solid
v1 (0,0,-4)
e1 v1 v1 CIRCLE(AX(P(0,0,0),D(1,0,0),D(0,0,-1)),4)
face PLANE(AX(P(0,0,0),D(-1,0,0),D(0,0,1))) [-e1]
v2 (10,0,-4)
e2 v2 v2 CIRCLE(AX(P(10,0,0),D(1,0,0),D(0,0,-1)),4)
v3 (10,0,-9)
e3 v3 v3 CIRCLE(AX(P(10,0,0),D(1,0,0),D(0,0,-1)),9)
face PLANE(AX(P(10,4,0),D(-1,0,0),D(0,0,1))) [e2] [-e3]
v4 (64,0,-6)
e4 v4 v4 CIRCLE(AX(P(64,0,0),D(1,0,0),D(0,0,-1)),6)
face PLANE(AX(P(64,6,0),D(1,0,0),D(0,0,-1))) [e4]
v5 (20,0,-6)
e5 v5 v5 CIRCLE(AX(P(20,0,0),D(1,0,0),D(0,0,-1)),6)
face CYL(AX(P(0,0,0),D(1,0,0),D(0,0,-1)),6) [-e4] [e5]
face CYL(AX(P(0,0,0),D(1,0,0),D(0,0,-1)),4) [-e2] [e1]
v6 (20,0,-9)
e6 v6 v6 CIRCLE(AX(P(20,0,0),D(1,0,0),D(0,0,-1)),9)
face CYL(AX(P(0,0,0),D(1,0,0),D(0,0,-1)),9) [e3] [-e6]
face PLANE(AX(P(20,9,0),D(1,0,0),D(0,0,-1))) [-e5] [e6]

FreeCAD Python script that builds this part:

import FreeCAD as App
import Part
import Sketcher

V = App.Vector


def add_polygon(sketch, points):
    """Adds a closed chain of lines whose ends are joined by coincident constraints."""
    first, n = sketch.GeometryCount, len(points)
    for a, b in zip(points, points[1:] + points[:1]):
        sketch.addGeometry(Part.LineSegment(App.Vector(*a, 0), App.Vector(*b, 0)), False)
    for i in range(n):
        sketch.addConstraint(Sketcher.Constraint("Coincident", first + i, 2, first + (i + 1) % n, 1))

doc = App.newDocument("Part")
params = doc.addObject("Spreadsheet::Sheet", "Params")
for row, (alias, value) in enumerate([
    ("sketch1_width", "64 mm"),
    ("sketch1_width2", "44 mm"),
    ("sketch1_height", "4 mm"),
    ("sketch1_height2", "6 mm"),
    ("sketch1_height3", "3 mm"),
    ("revolution_angle", "360 deg"),
], start=1):
    params.set(f"A{row}", alias)
    params.set(f"B{row}", "=" + value)
    params.setAlias(f"B{row}", alias)

body = doc.addObject("PartDesign::Body", "Body")

# Sketch on XY plane
sketch1 = doc.addObject("Sketcher::SketchObject", "Sketch")
body.addObject(sketch1)
sketch1.AttachmentSupport = (doc.XY_Plane, [""])
sketch1.MapMode = "FlatFace"
add_polygon(sketch1, [(0, 4), (0, 0), (64, 0), (64, 6), (20, 6), (20, 9), (10, 9), (10, 4)])  # lines 0-7
sketch1.addConstraint(Sketcher.Constraint("Vertical", 0))
sketch1.addConstraint(Sketcher.Constraint("Horizontal", 1))
sketch1.addConstraint(Sketcher.Constraint("Vertical", 2))
sketch1.addConstraint(Sketcher.Constraint("Horizontal", 3))
sketch1.addConstraint(Sketcher.Constraint("Vertical", 4))
sketch1.addConstraint(Sketcher.Constraint("Horizontal", 5))
sketch1.addConstraint(Sketcher.Constraint("Vertical", 6))
sketch1.addConstraint(Sketcher.Constraint("Horizontal", 7))
sketch1.addConstraint(Sketcher.Constraint("Coincident", 0, 2, -1, 1))
sketch1.addConstraint(Sketcher.Constraint("Equal", 5, 7))
sketch1.addConstraint(Sketcher.Constraint("DistanceX", 1, 1, 1, 2, 64.0))
sketch1.addConstraint(Sketcher.Constraint("DistanceX", 3, 2, 3, 1, 44.0))
sketch1.addConstraint(Sketcher.Constraint("DistanceY", 0, 2, 0, 1, 4.0))
sketch1.addConstraint(Sketcher.Constraint("DistanceY", 2, 1, 2, 2, 6.0))
sketch1.addConstraint(Sketcher.Constraint("DistanceY", 4, 1, 4, 2, 3.0))
sketch1.setExpression("Constraints[18]", "Params.sketch1_width")
sketch1.setExpression("Constraints[19]", "Params.sketch1_width2")
sketch1.setExpression("Constraints[20]", "Params.sketch1_height")
sketch1.setExpression("Constraints[21]", "Params.sketch1_height2")
sketch1.setExpression("Constraints[22]", "Params.sketch1_height3")
revolution = doc.addObject("PartDesign::Revolution", "Revolution")
body.addObject(revolution)
revolution.Profile = sketch1
revolution.ReferenceAxis = (sketch1, ["H_Axis"])
revolution.setExpression("Angle", "Params.revolution_angle")

doc.recompute()
